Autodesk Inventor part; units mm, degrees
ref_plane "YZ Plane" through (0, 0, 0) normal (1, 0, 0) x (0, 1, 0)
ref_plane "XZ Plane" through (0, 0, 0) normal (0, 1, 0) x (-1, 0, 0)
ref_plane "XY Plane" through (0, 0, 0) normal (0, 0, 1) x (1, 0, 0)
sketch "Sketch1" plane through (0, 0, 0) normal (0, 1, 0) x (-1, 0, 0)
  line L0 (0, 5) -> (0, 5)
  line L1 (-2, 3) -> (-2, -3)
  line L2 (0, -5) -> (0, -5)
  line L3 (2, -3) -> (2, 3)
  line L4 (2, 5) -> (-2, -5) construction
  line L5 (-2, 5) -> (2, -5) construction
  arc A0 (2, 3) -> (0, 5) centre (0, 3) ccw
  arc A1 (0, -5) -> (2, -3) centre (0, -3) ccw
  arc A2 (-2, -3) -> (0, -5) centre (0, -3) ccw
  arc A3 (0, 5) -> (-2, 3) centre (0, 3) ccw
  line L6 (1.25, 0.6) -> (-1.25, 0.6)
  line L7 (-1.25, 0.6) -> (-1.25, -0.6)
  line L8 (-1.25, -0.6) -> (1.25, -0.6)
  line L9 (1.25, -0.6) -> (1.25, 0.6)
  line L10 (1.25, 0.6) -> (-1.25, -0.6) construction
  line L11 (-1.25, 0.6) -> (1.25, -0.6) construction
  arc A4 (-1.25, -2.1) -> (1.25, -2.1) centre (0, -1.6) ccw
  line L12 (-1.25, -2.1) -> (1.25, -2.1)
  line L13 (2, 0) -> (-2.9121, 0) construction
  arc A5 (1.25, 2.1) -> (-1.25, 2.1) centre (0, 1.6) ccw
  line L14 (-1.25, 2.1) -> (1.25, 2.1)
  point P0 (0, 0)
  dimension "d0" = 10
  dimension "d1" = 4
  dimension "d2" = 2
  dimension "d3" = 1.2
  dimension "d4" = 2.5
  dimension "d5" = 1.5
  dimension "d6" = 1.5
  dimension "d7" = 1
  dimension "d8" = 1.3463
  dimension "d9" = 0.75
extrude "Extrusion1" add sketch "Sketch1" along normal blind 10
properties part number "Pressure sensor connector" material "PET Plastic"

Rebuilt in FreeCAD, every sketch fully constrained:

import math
import FreeCAD as App
import Part
import Sketcher

V = App.Vector


def add_polygon(sketch, points):
    """Adds a closed chain of lines whose ends are joined by coincident constraints."""
    first, n = sketch.GeometryCount, len(points)
    for a, b in zip(points, points[1:] + points[:1]):
        sketch.addGeometry(Part.LineSegment(App.Vector(*a, 0), App.Vector(*b, 0)), False)
    for i in range(n):
        sketch.addConstraint(Sketcher.Constraint("Coincident", first + i, 2, first + (i + 1) % n, 1))

doc = App.newDocument("Part")
body = doc.addObject("PartDesign::Body", "Body")

# Sketch on XZ plane
sketch1 = body.newObject("Sketcher::SketchObject", "Sketch")
sketch1.AttachmentSupport = (doc.getObject("XZ_Plane"), [""])
sketch1.MapMode = "FlatFace"
sketch1.addGeometry(Part.ArcOfCircle(Part.Circle(V(0, 3, 0), V(0, 0, 1), 2), math.radians(0), math.radians(180)), False)  # 0
sketch1.addGeometry(Part.LineSegment(V(2, 3, 0), V(2, -3, 0)), False)  # 1
sketch1.addGeometry(Part.ArcOfCircle(Part.Circle(V(0, -3, 0), V(0, 0, 1), 2), math.radians(180), math.radians(360)), False)  # 2
sketch1.addGeometry(Part.LineSegment(V(-2, -3, 0), V(-2, 3, 0)), False)  # 3
sketch1.addGeometry(Part.ArcOfCircle(Part.Circle(V(0, -1.6, 0), V(0, 0, 1), 1.346291), math.radians(-158.198591), math.radians(-21.801409)), False)  # 4
sketch1.addGeometry(Part.LineSegment(V(1.25, -2.1, 0), V(-1.25, -2.1, 0)), False)  # 5
add_polygon(sketch1, [(1.25, 0.6), (-1.25, 0.6), (-1.25, -0.6), (1.25, -0.6)])  # lines 6-9
sketch1.addGeometry(Part.ArcOfCircle(Part.Circle(V(0, 1.6, 0), V(0, 0, 1), 1.346291), math.radians(21.801409), math.radians(158.198591)), False)  # 10
sketch1.addGeometry(Part.LineSegment(V(-1.25, 2.1, 0), V(1.25, 2.1, 0)), False)  # 11
sketch1.addConstraint([
    Sketcher.Constraint("Tangent", 0, 1, 1, 1),
    Sketcher.Constraint("Tangent", 1, 2, 2, 2),
    Sketcher.Constraint("Tangent", 2, 1, 3, 1),
    Sketcher.Constraint("Tangent", 3, 2, 0, 2),
    Sketcher.Constraint("Coincident", 4, 1, 5, 2),
    Sketcher.Constraint("Coincident", 5, 1, 4, 2),
    Sketcher.Constraint("Coincident", 10, 1, 11, 2),
    Sketcher.Constraint("Coincident", 11, 1, 10, 2),
    Sketcher.Constraint("Vertical", 1),
    Sketcher.Constraint("Vertical", 3),
    Sketcher.Constraint("Horizontal", 5),
    Sketcher.Constraint("Horizontal", 6),
    Sketcher.Constraint("Vertical", 7),
    Sketcher.Constraint("Horizontal", 8),
    Sketcher.Constraint("Vertical", 9),
    Sketcher.Constraint("Horizontal", 11),
    Sketcher.Constraint("Equal", 4, 10),
    Sketcher.Constraint("Symmetric", 0, 3, 2, 3, -1, 1),
    Sketcher.Constraint("Symmetric", 4, 3, 10, 3, -1, 1),
    Sketcher.Constraint("Symmetric", 6, 2, 8, 2, -1, 1),
    Sketcher.Constraint("Symmetric", 5, 1, 10, 1, -1),
    Sketcher.Constraint("Vertical", 4, 1, 6, 2),
    Sketcher.Constraint("Radius", 0, 2.0),
    Sketcher.Constraint("DistanceX", 5, 2, 5, 1, 2.5),
    Sketcher.Constraint("DistanceY", 7, 2, 7, 1, 1.2),
    Sketcher.Constraint("DistanceY", 6, 2, 10, 3, 1.0),
    Sketcher.Constraint("Radius", 4, 1.3463),
    Sketcher.Constraint("DistanceY", 1, 2, 1, 1, 6.0),
])
pad1 = body.newObject("PartDesign::Pad", "Pad")
pad1.Profile = sketch1
pad1.Length = 10
pad1.Reversed = True

doc.recompute()
